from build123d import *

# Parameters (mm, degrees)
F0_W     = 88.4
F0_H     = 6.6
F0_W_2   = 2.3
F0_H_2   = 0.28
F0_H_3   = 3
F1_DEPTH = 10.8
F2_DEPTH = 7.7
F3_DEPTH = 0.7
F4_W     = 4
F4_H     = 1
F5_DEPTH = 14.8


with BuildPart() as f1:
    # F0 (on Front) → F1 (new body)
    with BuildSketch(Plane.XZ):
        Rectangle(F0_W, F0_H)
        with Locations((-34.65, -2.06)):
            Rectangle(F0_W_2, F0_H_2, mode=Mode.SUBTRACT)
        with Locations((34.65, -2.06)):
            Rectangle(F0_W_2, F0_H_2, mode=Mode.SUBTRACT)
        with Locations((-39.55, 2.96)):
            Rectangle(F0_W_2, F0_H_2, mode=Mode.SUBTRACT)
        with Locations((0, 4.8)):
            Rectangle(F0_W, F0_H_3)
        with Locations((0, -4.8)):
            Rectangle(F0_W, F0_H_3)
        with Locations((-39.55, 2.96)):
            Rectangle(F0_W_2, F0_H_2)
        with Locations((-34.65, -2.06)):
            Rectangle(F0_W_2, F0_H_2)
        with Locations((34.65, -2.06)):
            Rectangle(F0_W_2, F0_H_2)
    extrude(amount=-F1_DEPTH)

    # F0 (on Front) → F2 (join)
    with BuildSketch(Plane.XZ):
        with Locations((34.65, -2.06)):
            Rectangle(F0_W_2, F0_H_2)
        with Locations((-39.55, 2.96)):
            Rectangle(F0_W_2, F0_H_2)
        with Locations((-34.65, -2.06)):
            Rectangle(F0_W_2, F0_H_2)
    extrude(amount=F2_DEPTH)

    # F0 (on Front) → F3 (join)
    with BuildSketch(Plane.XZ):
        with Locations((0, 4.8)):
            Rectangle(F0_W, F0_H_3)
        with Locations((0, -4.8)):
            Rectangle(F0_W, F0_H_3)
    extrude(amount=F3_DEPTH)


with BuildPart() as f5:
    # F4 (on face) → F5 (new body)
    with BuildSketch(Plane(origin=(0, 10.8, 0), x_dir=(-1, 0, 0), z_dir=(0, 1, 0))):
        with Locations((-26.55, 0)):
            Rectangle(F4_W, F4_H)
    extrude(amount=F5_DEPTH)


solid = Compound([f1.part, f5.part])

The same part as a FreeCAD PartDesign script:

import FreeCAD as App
import Part
import Sketcher
Q = App.Units.Quantity


def add_polygon(sketch, points):
    """Adds a closed chain of lines whose ends are joined by coincident constraints."""
    first, n = sketch.GeometryCount, len(points)
    for a, b in zip(points, points[1:] + points[:1]):
        sketch.addGeometry(Part.LineSegment(App.Vector(*a, 0), App.Vector(*b, 0)), False)
    for i in range(n):
        sketch.addConstraint(Sketcher.Constraint("Coincident", first + i, 2, first + (i + 1) % n, 1))

doc = App.newDocument("Part")
body = doc.addObject("PartDesign::Body", "Body")

# Sketch on XZ plane
sketch1 = doc.addObject("Sketcher::SketchObject", "Sketch")
body.addObject(sketch1)
sketch1.AttachmentSupport = (doc.XZ_Plane, [""])
sketch1.MapMode = "FlatFace"
add_polygon(sketch1, [(44, 6), (-44, 6), (-44, -6), (44, -6)])  # lines 0-3
sketch1.addConstraint(Sketcher.Constraint("Horizontal", 0))
sketch1.addConstraint(Sketcher.Constraint("Vertical", 1))
sketch1.addConstraint(Sketcher.Constraint("Horizontal", 2))
sketch1.addConstraint(Sketcher.Constraint("Vertical", 3))
sketch1.addConstraint(Sketcher.Constraint("Symmetric", 0, 2, 2, 2, -1, 1))
sketch1.addConstraint(Sketcher.Constraint("DistanceX", 0, 2, 0, 1, Q("88.4 mm")))
sketch1.addConstraint(Sketcher.Constraint("DistanceY", 1, 2, 1, 1, Q("12.6 mm")))
pad1 = doc.addObject("PartDesign::Pad", "Pad")
body.addObject(pad1)
pad1.Profile = sketch1
pad1.Length = 10.8
pad1.Reversed = True

# Sketch on XZ plane
sketch2 = doc.addObject("Sketcher::SketchObject", "Sketch001")
body.addObject(sketch2)
sketch2.AttachmentSupport = (doc.XZ_Plane, [""])
sketch2.MapMode = "FlatFace"
add_polygon(sketch2, [(33.5, -1.92), (33.5, -2.2), (35.8, -2.2), (35.8, -1.92)])  # lines 0-3
add_polygon(sketch2, [(-40.7, 3.1), (-40.7, 2.82), (-38.4, 2.82), (-38.4, 3.1)])  # lines 4-7
add_polygon(sketch2, [(-35.8, -1.92), (-35.8, -2.2), (-33.5, -2.2), (-33.5, -1.92)])  # lines 8-11
sketch2.addConstraint(Sketcher.Constraint("Vertical", 0))
sketch2.addConstraint(Sketcher.Constraint("Horizontal", 1))
sketch2.addConstraint(Sketcher.Constraint("Vertical", 2))
sketch2.addConstraint(Sketcher.Constraint("Horizontal", 3))
sketch2.addConstraint(Sketcher.Constraint("Vertical", 4))
sketch2.addConstraint(Sketcher.Constraint("Horizontal", 5))
sketch2.addConstraint(Sketcher.Constraint("Vertical", 6))
sketch2.addConstraint(Sketcher.Constraint("Horizontal", 7))
sketch2.addConstraint(Sketcher.Constraint("Vertical", 8))
sketch2.addConstraint(Sketcher.Constraint("Horizontal", 9))
sketch2.addConstraint(Sketcher.Constraint("Vertical", 10))
sketch2.addConstraint(Sketcher.Constraint("Horizontal", 11))
sketch2.addConstraint(Sketcher.Constraint("Symmetric", 1, 2, 8, 2, -2))
sketch2.addConstraint(Sketcher.Constraint("Symmetric", 3, 2, 10, 2, -2))
sketch2.addConstraint(Sketcher.Constraint("Equal", 3, 5))
sketch2.addConstraint(Sketcher.Constraint("Equal", 2, 4))
sketch2.addConstraint(Sketcher.Constraint("DistanceX", 1, 1, 1, 2, Q("2.3 mm")))
sketch2.addConstraint(Sketcher.Constraint("DistanceY", 0, 2, 0, 1, Q("0.28 mm")))
sketch2.addConstraint(Sketcher.Constraint("DistanceX", -1, 1, 0, 2, Q("33.5 mm")))
sketch2.addConstraint(Sketcher.Constraint("DistanceY", 0, 2, -1, 1, Q("2.2 mm")))
sketch2.addConstraint(Sketcher.Constraint("DistanceX", 4, 2, -1, 1, Q("40.7 mm")))
sketch2.addConstraint(Sketcher.Constraint("DistanceY", -1, 1, 6, 2, Q("3.1 mm")))
pad2 = doc.addObject("PartDesign::Pad", "Pad001")
body.addObject(pad2)
pad2.Profile = sketch2
pad2.Length = 7.7

# Sketch on XZ plane
sketch3 = doc.addObject("Sketcher::SketchObject", "Sketch002")
body.addObject(sketch3)
sketch3.AttachmentSupport = (doc.XZ_Plane, [""])
sketch3.MapMode = "FlatFace"
add_polygon(sketch3, [(-44.2, 6.3), (-44.2, 3.3), (44.2, 3.3), (44.2, 6.3)])  # lines 0-3
add_polygon(sketch3, [(-44.2, -3.3), (-44.2, -6.3), (44.2, -6.3), (44.2, -3.3)])  # lines 4-7
sketch3.addConstraint(Sketcher.Constraint("Vertical", 0))
sketch3.addConstraint(Sketcher.Constraint("Horizontal", 1))
sketch3.addConstraint(Sketcher.Constraint("Vertical", 2))
sketch3.addConstraint(Sketcher.Constraint("Horizontal", 3))
sketch3.addConstraint(Sketcher.Constraint("Vertical", 4))
sketch3.addConstraint(Sketcher.Constraint("Horizontal", 5))
sketch3.addConstraint(Sketcher.Constraint("Vertical", 6))
sketch3.addConstraint(Sketcher.Constraint("Horizontal", 7))
sketch3.addConstraint(Sketcher.Constraint("Symmetric", 2, 2, 4, 2, -1, 1))
sketch3.addConstraint(Sketcher.Constraint("Symmetric", 0, 2, 6, 2, -1, 1))
sketch3.addConstraint(Sketcher.Constraint("Vertical", 3, 2, 4, 2))
sketch3.addConstraint(Sketcher.Constraint("DistanceY", 0, 2, 0, 1, Q("3 mm")))
sketch3.addConstraint(Sketcher.Constraint("DistanceX", 1, 1, 1, 2, Q("88.4 mm")))
sketch3.addConstraint(Sketcher.Constraint("DistanceY", -1, 1, 0, 2, Q("3.3 mm")))
pad3 = doc.addObject("PartDesign::Pad", "Pad002")
body.addObject(pad3)
pad3.Profile = sketch3
pad3.Length = 0.7
body2 = doc.addObject("PartDesign::Body", "Body001")

# Sketch on XZ plane
sketch4 = doc.addObject("Sketcher::SketchObject", "Sketch003")
body2.addObject(sketch4)
sketch4.AttachmentSupport = (doc.getObject("XZ_Plane001"), [""])
sketch4.MapMode = "FlatFace"
sketch4.AttachmentOffset = App.Placement(App.Vector(0, 0, -10.8), App.Rotation())
add_polygon(sketch4, [(28.6, 0.5), (28.6, -0.5), (24.6, -0.5), (24.6, 0.5)])  # lines 0-3
sketch4.addConstraint(Sketcher.Constraint("Vertical", 0))
sketch4.addConstraint(Sketcher.Constraint("Horizontal", 1))
sketch4.addConstraint(Sketcher.Constraint("Vertical", 2))
sketch4.addConstraint(Sketcher.Constraint("Horizontal", 3))
sketch4.addConstraint(Sketcher.Constraint("DistanceX", 1, 2, 1, 1, Q("4 mm")))
sketch4.addConstraint(Sketcher.Constraint("DistanceY", 0, 2, 0, 1, Q("1 mm")))
sketch4.addConstraint(Sketcher.Constraint("DistanceY", 0, 2, -1, 1, Q("0.5 mm")))
sketch4.addConstraint(Sketcher.Constraint("DistanceX", -1, 1, 0, 2, Q("28.55 mm")))
pad4 = doc.addObject("PartDesign::Pad", "Pad003")
body2.addObject(pad4)
pad4.Profile = sketch4
pad4.Length = 14.8
pad4.Reversed = True

doc.recompute()
